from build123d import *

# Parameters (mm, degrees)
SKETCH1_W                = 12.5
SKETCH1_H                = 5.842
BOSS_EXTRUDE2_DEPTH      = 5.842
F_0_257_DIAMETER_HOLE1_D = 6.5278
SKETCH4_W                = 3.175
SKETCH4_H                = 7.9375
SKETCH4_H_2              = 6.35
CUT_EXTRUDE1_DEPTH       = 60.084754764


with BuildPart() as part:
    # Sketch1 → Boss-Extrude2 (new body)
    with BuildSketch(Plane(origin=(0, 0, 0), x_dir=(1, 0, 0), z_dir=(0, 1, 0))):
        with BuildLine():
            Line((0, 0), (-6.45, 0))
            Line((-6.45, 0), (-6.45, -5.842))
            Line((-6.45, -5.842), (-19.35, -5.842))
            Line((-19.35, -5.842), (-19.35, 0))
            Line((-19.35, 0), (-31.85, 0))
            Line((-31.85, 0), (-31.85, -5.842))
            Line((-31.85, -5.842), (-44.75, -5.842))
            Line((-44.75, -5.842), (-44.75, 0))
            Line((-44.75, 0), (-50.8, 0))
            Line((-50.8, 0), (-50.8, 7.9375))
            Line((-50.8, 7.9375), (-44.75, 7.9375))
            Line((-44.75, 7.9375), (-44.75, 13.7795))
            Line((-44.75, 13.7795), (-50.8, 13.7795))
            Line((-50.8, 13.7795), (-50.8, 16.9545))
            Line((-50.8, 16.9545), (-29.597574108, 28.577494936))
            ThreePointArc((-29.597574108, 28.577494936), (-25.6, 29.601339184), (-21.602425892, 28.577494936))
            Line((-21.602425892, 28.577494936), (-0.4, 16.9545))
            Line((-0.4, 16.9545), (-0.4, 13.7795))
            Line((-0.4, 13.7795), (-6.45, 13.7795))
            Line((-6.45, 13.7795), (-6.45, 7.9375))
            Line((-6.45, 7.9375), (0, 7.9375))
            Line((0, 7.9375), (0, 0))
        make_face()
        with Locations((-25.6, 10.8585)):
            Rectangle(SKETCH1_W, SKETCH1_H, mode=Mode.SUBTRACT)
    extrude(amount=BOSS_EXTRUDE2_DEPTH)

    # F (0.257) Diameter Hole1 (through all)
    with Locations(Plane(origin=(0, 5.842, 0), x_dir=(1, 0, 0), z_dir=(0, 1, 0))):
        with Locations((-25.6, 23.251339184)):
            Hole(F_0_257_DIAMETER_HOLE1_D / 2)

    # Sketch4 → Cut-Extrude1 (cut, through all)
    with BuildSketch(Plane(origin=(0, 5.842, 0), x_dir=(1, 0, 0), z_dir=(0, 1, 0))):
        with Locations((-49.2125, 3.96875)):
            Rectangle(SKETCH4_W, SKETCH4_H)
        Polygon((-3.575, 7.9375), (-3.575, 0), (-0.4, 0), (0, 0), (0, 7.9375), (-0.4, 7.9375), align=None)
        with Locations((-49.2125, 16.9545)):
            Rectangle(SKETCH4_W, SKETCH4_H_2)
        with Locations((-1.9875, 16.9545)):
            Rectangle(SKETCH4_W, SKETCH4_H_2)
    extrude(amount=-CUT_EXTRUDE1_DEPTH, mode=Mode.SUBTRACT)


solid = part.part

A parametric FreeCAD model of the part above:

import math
import FreeCAD as App
import Part
import Sketcher
Q = App.Units.Quantity


def add_polygon(sketch, points):
    """Adds a closed chain of lines whose ends are joined by coincident constraints."""
    first, n = sketch.GeometryCount, len(points)
    for a, b in zip(points, points[1:] + points[:1]):
        sketch.addGeometry(Part.LineSegment(App.Vector(*a, 0), App.Vector(*b, 0)), False)
    for i in range(n):
        sketch.addConstraint(Sketcher.Constraint("Coincident", first + i, 2, first + (i + 1) % n, 1))

doc = App.newDocument("Part")
body = doc.addObject("PartDesign::Body", "Body")

# Sketch on XZ plane
sketch1 = body.newObject("Sketcher::SketchObject", "Sketch")
sketch1.AttachmentSupport = (doc.getObject("XZ_Plane"), [""])
sketch1.MapMode = "FlatFace"
sketch1.addGeometry(Part.LineSegment(App.Vector(-6.5, 0, 0), App.Vector(0, 0, 0)), False)  # 0
sketch1.addGeometry(Part.LineSegment(App.Vector(0, 0, 0), App.Vector(0, -7.9, 0)), False)  # 1
sketch1.addGeometry(Part.LineSegment(App.Vector(0, -7.9, 0), App.Vector(-6.5, -7.9, 0)), False)  # 2
sketch1.addGeometry(Part.LineSegment(App.Vector(-6.5, -7.9, 0), App.Vector(-6.5, -13.8, 0)), False)  # 3
sketch1.addGeometry(Part.LineSegment(App.Vector(-6.5, -13.8, 0), App.Vector(-0.4, -13.8, 0)), False)  # 4
sketch1.addGeometry(Part.LineSegment(App.Vector(-0.4, -13.8, 0), App.Vector(-0.4, -17, 0)), False)  # 5
sketch1.addGeometry(Part.LineSegment(App.Vector(-0.4, -17, 0), App.Vector(-21.6, -28.6, 0)), False)  # 6
sketch1.addGeometry(Part.ArcOfCircle(Part.Circle(App.Vector(-25.6, -21.3, 0), App.Vector(0, 0, 1), 8.3), math.radians(-119), math.radians(-61)), False)  # 7
sketch1.addGeometry(Part.LineSegment(App.Vector(-29.6, -28.6, 0), App.Vector(-50.8, -17, 0)), False)  # 8
sketch1.addGeometry(Part.LineSegment(App.Vector(-50.8, -17, 0), App.Vector(-50.8, -13.8, 0)), False)  # 9
sketch1.addGeometry(Part.LineSegment(App.Vector(-50.8, -13.8, 0), App.Vector(-44.8, -13.8, 0)), False)  # 10
sketch1.addGeometry(Part.LineSegment(App.Vector(-44.8, -13.8, 0), App.Vector(-44.8, -7.9, 0)), False)  # 11
sketch1.addGeometry(Part.LineSegment(App.Vector(-44.8, -7.9, 0), App.Vector(-50.8, -7.9, 0)), False)  # 12
sketch1.addGeometry(Part.LineSegment(App.Vector(-50.8, -7.9, 0), App.Vector(-50.8, 0, 0)), False)  # 13
sketch1.addGeometry(Part.LineSegment(App.Vector(-50.8, 0, 0), App.Vector(-44.8, 0, 0)), False)  # 14
sketch1.addGeometry(Part.LineSegment(App.Vector(-44.8, 0, 0), App.Vector(-44.8, 5.8, 0)), False)  # 15
sketch1.addGeometry(Part.LineSegment(App.Vector(-44.8, 5.8, 0), App.Vector(-31.9, 5.8, 0)), False)  # 16
sketch1.addGeometry(Part.LineSegment(App.Vector(-31.9, 5.8, 0), App.Vector(-31.9, 0, 0)), False)  # 17
sketch1.addGeometry(Part.LineSegment(App.Vector(-31.9, 0, 0), App.Vector(-19.4, 0, 0)), False)  # 18
sketch1.addGeometry(Part.LineSegment(App.Vector(-19.4, 0, 0), App.Vector(-19.4, 5.8, 0)), False)  # 19
sketch1.addGeometry(Part.LineSegment(App.Vector(-19.4, 5.8, 0), App.Vector(-6.5, 5.8, 0)), False)  # 20
sketch1.addGeometry(Part.LineSegment(App.Vector(-6.5, 5.8, 0), App.Vector(-6.5, 0, 0)), False)  # 21
add_polygon(sketch1, [(-31.9, -7.9), (-31.9, -13.8), (-19.4, -13.8), (-19.4, -7.9)])  # lines 22-25
sketch1.addConstraint([
    Sketcher.Constraint("Coincident", 0, 2, 1, 1),
    Sketcher.Constraint("Coincident", 1, 2, 2, 1),
    Sketcher.Constraint("Coincident", 2, 2, 3, 1),
    Sketcher.Constraint("Coincident", 3, 2, 4, 1),
    Sketcher.Constraint("Coincident", 4, 2, 5, 1),
    Sketcher.Constraint("Coincident", 5, 2, 6, 1),
    Sketcher.Constraint("Tangent", 6, 2, 7, 2),
    Sketcher.Constraint("Tangent", 7, 1, 8, 1),
    Sketcher.Constraint("Coincident", 8, 2, 9, 1),
    Sketcher.Constraint("Coincident", 9, 2, 10, 1),
    Sketcher.Constraint("Coincident", 10, 2, 11, 1),
    Sketcher.Constraint("Coincident", 11, 2, 12, 1),
    Sketcher.Constraint("Coincident", 12, 2, 13, 1),
    Sketcher.Constraint("Coincident", 13, 2, 14, 1),
    Sketcher.Constraint("Coincident", 14, 2, 15, 1),
    Sketcher.Constraint("Coincident", 15, 2, 16, 1),
    Sketcher.Constraint("Coincident", 16, 2, 17, 1),
    Sketcher.Constraint("Coincident", 17, 2, 18, 1),
    Sketcher.Constraint("Coincident", 18, 2, 19, 1),
    Sketcher.Constraint("Coincident", 19, 2, 20, 1),
    Sketcher.Constraint("Coincident", 20, 2, 21, 1),
    Sketcher.Constraint("Coincident", 21, 2, 0, 1),
    Sketcher.Constraint("Horizontal", 0),
    Sketcher.Constraint("Vertical", 1),
    Sketcher.Constraint("Horizontal", 2),
    Sketcher.Constraint("Vertical", 3),
    Sketcher.Constraint("Horizontal", 4),
    Sketcher.Constraint("Vertical", 5),
    Sketcher.Constraint("Vertical", 9),
    Sketcher.Constraint("Horizontal", 10),
    Sketcher.Constraint("Vertical", 11),
    Sketcher.Constraint("Horizontal", 12),
    Sketcher.Constraint("Vertical", 13),
    Sketcher.Constraint("Horizontal", 14),
    Sketcher.Constraint("Vertical", 15),
    Sketcher.Constraint("Horizontal", 16),
    Sketcher.Constraint("Vertical", 17),
    Sketcher.Constraint("Horizontal", 18),
    Sketcher.Constraint("Vertical", 19),
    Sketcher.Constraint("Horizontal", 20),
    Sketcher.Constraint("Vertical", 21),
    Sketcher.Constraint("Vertical", 22),
    Sketcher.Constraint("Horizontal", 23),
    Sketcher.Constraint("Vertical", 24),
    Sketcher.Constraint("Horizontal", 25),
    Sketcher.Constraint("Coincident", 0, 2, -1, 1),
    Sketcher.Constraint("PointOnObject", 13, 2, -1),
    Sketcher.Constraint("PointOnObject", 17, 2, -1),
    Sketcher.Constraint("Horizontal", 6, 2, 7, 1),
    Sketcher.Constraint("Horizontal", 5, 2, 8, 2),
    Sketcher.Constraint("Horizontal", 4, 2, 9, 2),
    Sketcher.Constraint("Horizontal", 2, 2, 11, 2),
    Sketcher.Constraint("Horizontal", 16, 2, 19, 2),
    Sketcher.Constraint("Horizontal", 10, 2, 22, 2),
    Sketcher.Constraint("Horizontal", 12, 2, 24, 2),
    Sketcher.Constraint("Vertical", 9, 2, 12, 2),
    Sketcher.Constraint("Vertical", 11, 2, 14, 2),
    Sketcher.Constraint("Vertical", 3, 2, 20, 2),
    Sketcher.Constraint("Vertical", 17, 2, 22, 2),
    Sketcher.Constraint("Vertical", 19, 2, 23, 2),
    Sketcher.Constraint("Equal", 4, 10),
    Sketcher.Constraint("Equal", 16, 20),
    Sketcher.Constraint("Equal", 11, 15),
    Sketcher.Constraint("DistanceX", 8, 2, -1, 1, Q("2 in")),
    Sketcher.Constraint("DistanceY", 3, 2, 3, 1, Q("0.23 in")),
    Sketcher.Constraint("DistanceY", 1, 2, 1, 1, Q("0.3125 in")),
    Sketcher.Constraint("DistanceY", 5, 2, 5, 1, Q("0.125 in")),
    Sketcher.Constraint("DistanceY", 7, 3, -1, 1, Q("0.8380001 in")),
    Sketcher.Constraint("DistanceX", 0, 1, 0, 2, Q("6.45 mm")),
    Sketcher.Constraint("DistanceX", 4, 1, 4, 2, Q("6.05 mm")),
    Sketcher.Constraint("DistanceX", 16, 1, 16, 2, Q("12.9 mm")),
    Sketcher.Constraint("Radius", 7, Q("8.316136 mm")),
])
pad1 = body.newObject("PartDesign::Pad", "Pad")
pad1.Profile = sketch1
pad1.Length = Q("0.23 in")
pad1.Reversed = True

# Sketch on XZ plane
sketch2 = body.newObject("Sketcher::SketchObject", "Sketch001")
sketch2.AttachmentSupport = (doc.getObject("XZ_Plane"), [""])
sketch2.MapMode = "FlatFace"
sketch2.AttachmentOffset = App.Placement(App.Vector(0, 0, -0.23 * 25.4), App.Rotation())
sketch2.addGeometry(Part.Circle(App.Vector(-25.6, -23.3, 0), App.Vector(0, 0, 1), 3.3), False)
sketch2.addConstraint([
    Sketcher.Constraint("Diameter", 0, Q("0.257 in")),
    Sketcher.Constraint("DistanceX", 0, 3, -1, 1, Q("25.6 mm")),
    Sketcher.Constraint("DistanceY", 0, 3, -1, 1, Q("23.251339 mm")),
])
doc.recompute()
hole = body.newObject("PartDesign::Hole", "Hole")
hole.Profile = sketch2
hole.ThreadType = "None"
hole.Diameter = Q("0.257 in")
hole.DepthType = "ThroughAll"
hole.Reversed = True

# Sketch on XZ plane
sketch3 = body.newObject("Sketcher::SketchObject", "Sketch002")
sketch3.AttachmentSupport = (doc.getObject("XZ_Plane"), [""])
sketch3.MapMode = "FlatFace"
sketch3.AttachmentOffset = App.Placement(App.Vector(0, 0, -0.23 * 25.4), App.Rotation())
add_polygon(sketch3, [(-50.8, -7.9), (-50.8, 0), (-47.6, 0), (-47.6, -7.9)])  # lines 0-3
add_polygon(sketch3, [(-3.6, -7.9), (-3.6, 0), (0, 0), (0, -7.9)])  # lines 4-7
add_polygon(sketch3, [(-50.8, -20.1), (-50.8, -13.8), (-47.6, -13.8), (-47.6, -20.1)])  # lines 8-11
add_polygon(sketch3, [(-3.6, -20.1), (-3.6, -13.8), (-0.4, -13.8), (-0.4, -20.1)])  # lines 12-15
sketch3.addConstraint([
    Sketcher.Constraint("Vertical", 0),
    Sketcher.Constraint("Horizontal", 1),
    Sketcher.Constraint("Vertical", 2),
    Sketcher.Constraint("Horizontal", 3),
    Sketcher.Constraint("Vertical", 4),
    Sketcher.Constraint("Horizontal", 5),
    Sketcher.Constraint("Vertical", 6),
    Sketcher.Constraint("Horizontal", 7),
    Sketcher.Constraint("Vertical", 8),
    Sketcher.Constraint("Horizontal", 9),
    Sketcher.Constraint("Vertical", 10),
    Sketcher.Constraint("Horizontal", 11),
    Sketcher.Constraint("Vertical", 12),
    Sketcher.Constraint("Horizontal", 13),
    Sketcher.Constraint("Vertical", 14),
    Sketcher.Constraint("Horizontal", 15),
    Sketcher.Constraint("Coincident", 5, 2, -1, 1),
    Sketcher.Constraint("PointOnObject", 0, 2, -1),
    Sketcher.Constraint("Horizontal", 3, 2, 6, 2),
    Sketcher.Constraint("Horizontal", 9, 2, 12, 2),
    Sketcher.Constraint("Horizontal", 11, 2, 14, 2),
    Sketcher.Constraint("Vertical", 3, 2, 8, 2),
    Sketcher.Constraint("Vertical", 2, 2, 9, 2),
    Sketcher.Constraint("Vertical", 7, 2, 12, 2),
    Sketcher.Constraint("Equal", 11, 13),
    Sketcher.Constraint("DistanceX", 0, 2, -1, 1, Q("2 in")),
    Sketcher.Constraint("DistanceY", 8, 1, 8, 2, Q("0.25 in")),
    Sketcher.Constraint("DistanceX", 1, 1, 1, 2, Q("0.125 in")),
    Sketcher.Constraint("DistanceY", 0, 1, 0, 2, Q("0.3125 in")),
    Sketcher.Constraint("DistanceY", 8, 2, 3, 2, Q("0.23 in")),
    Sketcher.Constraint("DistanceX", 5, 1, 5, 2, Q("3.575 mm")),
])
pocket1 = body.newObject("PartDesign::Pocket", "Pocket")
pocket1.Profile = sketch3
pocket1.Type = "ThroughAll"
pocket1.Reversed = True

doc.recompute()
